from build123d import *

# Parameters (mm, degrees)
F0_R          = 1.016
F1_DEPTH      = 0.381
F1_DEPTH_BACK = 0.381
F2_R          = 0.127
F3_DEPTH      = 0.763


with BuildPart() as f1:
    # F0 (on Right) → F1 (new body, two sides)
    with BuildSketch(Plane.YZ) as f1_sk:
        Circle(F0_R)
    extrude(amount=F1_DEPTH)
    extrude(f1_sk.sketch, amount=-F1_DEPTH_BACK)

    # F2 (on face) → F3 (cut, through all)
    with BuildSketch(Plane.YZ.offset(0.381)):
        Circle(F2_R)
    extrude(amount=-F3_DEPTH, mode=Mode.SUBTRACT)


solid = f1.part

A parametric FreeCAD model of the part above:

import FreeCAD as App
import Part
import Sketcher
Q = App.Units.Quantity

doc = App.newDocument("Part")
body = doc.addObject("PartDesign::Body", "Body")

# Sketch on YZ plane
sketch1 = body.newObject("Sketcher::SketchObject", "Sketch")
sketch1.AttachmentSupport = (doc.getObject("YZ_Plane"), [""])
sketch1.MapMode = "FlatFace"
sketch1.addGeometry(Part.Circle(App.Vector(0, 0, 0), App.Vector(0, 0, 1), 1.016), False)
sketch1.addConstraint([
    Sketcher.Constraint("Coincident", 0, 3, -1, 1),
    Sketcher.Constraint("Diameter", 0, Q("0.08 in")),
])
pad1 = body.newObject("PartDesign::Pad", "Pad")
pad1.Profile = sketch1
pad1.Type = "TwoLengths"
pad1.Length = Q("0.015 in")
pad1.Length2 = Q("0.015 in")

# Sketch on YZ plane
sketch2 = body.newObject("Sketcher::SketchObject", "Sketch001")
sketch2.AttachmentSupport = (doc.getObject("YZ_Plane"), [""])
sketch2.MapMode = "FlatFace"
sketch2.AttachmentOffset = App.Placement(App.Vector(0, 0, 0.015 * 25.4), App.Rotation())
sketch2.addGeometry(Part.Circle(App.Vector(0, 0, 0), App.Vector(0, 0, 1), 0.127), False)
sketch2.addConstraint([
    Sketcher.Constraint("Coincident", 0, 3, -1, 1),
    Sketcher.Constraint("Diameter", 0, Q("0.01 in")),
])
pocket1 = body.newObject("PartDesign::Pocket", "Pocket")
pocket1.Profile = sketch2
pocket1.Type = "ThroughAll"

doc.recompute()
